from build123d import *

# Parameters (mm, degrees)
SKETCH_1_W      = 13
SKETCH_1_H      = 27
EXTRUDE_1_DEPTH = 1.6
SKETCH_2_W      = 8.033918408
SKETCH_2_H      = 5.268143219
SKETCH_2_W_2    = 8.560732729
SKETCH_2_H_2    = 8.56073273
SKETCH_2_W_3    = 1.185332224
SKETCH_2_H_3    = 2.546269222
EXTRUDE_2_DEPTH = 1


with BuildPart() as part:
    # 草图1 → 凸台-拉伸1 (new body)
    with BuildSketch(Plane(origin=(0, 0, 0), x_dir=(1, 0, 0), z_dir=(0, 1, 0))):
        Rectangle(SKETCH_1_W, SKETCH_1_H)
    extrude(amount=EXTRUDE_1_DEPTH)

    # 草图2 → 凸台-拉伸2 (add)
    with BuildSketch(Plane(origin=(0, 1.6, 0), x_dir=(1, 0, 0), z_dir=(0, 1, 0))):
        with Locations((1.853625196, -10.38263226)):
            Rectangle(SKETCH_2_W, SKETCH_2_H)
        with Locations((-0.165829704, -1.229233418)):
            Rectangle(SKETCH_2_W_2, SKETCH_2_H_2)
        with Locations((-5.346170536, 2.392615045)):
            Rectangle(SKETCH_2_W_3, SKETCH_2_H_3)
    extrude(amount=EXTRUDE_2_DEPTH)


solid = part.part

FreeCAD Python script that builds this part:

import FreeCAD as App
import Part
import Sketcher

V = App.Vector
Q = App.Units.Quantity


def add_polygon(sketch, points):
    """Adds a closed chain of lines whose ends are joined by coincident constraints."""
    first, n = sketch.GeometryCount, len(points)
    for a, b in zip(points, points[1:] + points[:1]):
        sketch.addGeometry(Part.LineSegment(App.Vector(*a, 0), App.Vector(*b, 0)), False)
    for i in range(n):
        sketch.addConstraint(Sketcher.Constraint("Coincident", first + i, 2, first + (i + 1) % n, 1))

doc = App.newDocument("Part")
body = doc.addObject("PartDesign::Body", "Body")

# Sketch on XZ plane
sketch1 = body.newObject("Sketcher::SketchObject", "Sketch")
sketch1.AttachmentSupport = (doc.getObject("XZ_Plane"), [""])
sketch1.MapMode = "FlatFace"
add_polygon(sketch1, [(-6, -14), (-6, 14), (6, 14), (6, -14)])  # lines 0-3
sketch1.addConstraint([
    Sketcher.Constraint("Vertical", 0),
    Sketcher.Constraint("Horizontal", 1),
    Sketcher.Constraint("Vertical", 2),
    Sketcher.Constraint("Horizontal", 3),
    Sketcher.Constraint("Symmetric", 0, 2, 2, 2, -1, 1),
    Sketcher.Constraint("DistanceX", 1, 1, 1, 2, Q("13 mm")),
    Sketcher.Constraint("DistanceY", 0, 1, 0, 2, Q("27 mm")),
])
pad1 = body.newObject("PartDesign::Pad", "Pad")
pad1.Profile = sketch1
pad1.Length = 1.6
pad1.Reversed = True

# Sketch on XZ plane
sketch2 = body.newObject("Sketcher::SketchObject", "Sketch001")
sketch2.AttachmentSupport = (doc.getObject("XZ_Plane"), [""])
sketch2.MapMode = "FlatFace"
sketch2.AttachmentOffset = App.Placement(V(0, 0, -1.6), App.Rotation())
add_polygon(sketch2, [(-2.2, 7.7), (-2.2, 13), (5.9, 13), (5.9, 7.7)])  # lines 0-3
add_polygon(sketch2, [(-4.4, -3.1), (-4.4, 5.5), (4.1, 5.5), (4.1, -3.1)])  # lines 4-7
add_polygon(sketch2, [(-5.9, -3.7), (-5.9, -1.1), (-4.8, -1.1), (-4.8, -3.7)])  # lines 8-11
sketch2.addConstraint([
    Sketcher.Constraint("Vertical", 0),
    Sketcher.Constraint("Horizontal", 1),
    Sketcher.Constraint("Vertical", 2),
    Sketcher.Constraint("Horizontal", 3),
    Sketcher.Constraint("Vertical", 4),
    Sketcher.Constraint("Horizontal", 5),
    Sketcher.Constraint("Vertical", 6),
    Sketcher.Constraint("Horizontal", 7),
    Sketcher.Constraint("Vertical", 8),
    Sketcher.Constraint("Horizontal", 9),
    Sketcher.Constraint("Vertical", 10),
    Sketcher.Constraint("Horizontal", 11),
    Sketcher.Constraint("Equal", 7, 4),
    Sketcher.Constraint("DistanceX", 1, 1, 1, 2, Q("8.033918 mm")),
    Sketcher.Constraint("DistanceY", 8, 1, 8, 2, Q("2.546269 mm")),
    Sketcher.Constraint("DistanceY", -1, 1, 4, 2, Q("5.5096 mm")),
    Sketcher.Constraint("DistanceX", 5, 1, 5, 2, Q("8.560733 mm")),
    Sketcher.Constraint("DistanceX", 9, 1, 9, 2, Q("1.185332 mm")),
    Sketcher.Constraint("DistanceY", 0, 1, 0, 2, Q("5.268143 mm")),
    Sketcher.Constraint("DistanceY", -1, 1, 2, 2, Q("7.748561 mm")),
    Sketcher.Constraint("DistanceY", 8, 2, -1, 1, Q("1.11948 mm")),
    Sketcher.Constraint("DistanceX", 4, 2, 2, 2, Q("10.31678 mm")),
    Sketcher.Constraint("DistanceX", 8, 2, 7, 2, Q("1.492641 mm")),
    Sketcher.Constraint("DistanceX", 0, 2, -1, 1, Q("2.163334 mm")),
])
pad2 = body.newObject("PartDesign::Pad", "Pad001")
pad2.Profile = sketch2
pad2.Length = 1
pad2.Reversed = True

doc.recompute()
